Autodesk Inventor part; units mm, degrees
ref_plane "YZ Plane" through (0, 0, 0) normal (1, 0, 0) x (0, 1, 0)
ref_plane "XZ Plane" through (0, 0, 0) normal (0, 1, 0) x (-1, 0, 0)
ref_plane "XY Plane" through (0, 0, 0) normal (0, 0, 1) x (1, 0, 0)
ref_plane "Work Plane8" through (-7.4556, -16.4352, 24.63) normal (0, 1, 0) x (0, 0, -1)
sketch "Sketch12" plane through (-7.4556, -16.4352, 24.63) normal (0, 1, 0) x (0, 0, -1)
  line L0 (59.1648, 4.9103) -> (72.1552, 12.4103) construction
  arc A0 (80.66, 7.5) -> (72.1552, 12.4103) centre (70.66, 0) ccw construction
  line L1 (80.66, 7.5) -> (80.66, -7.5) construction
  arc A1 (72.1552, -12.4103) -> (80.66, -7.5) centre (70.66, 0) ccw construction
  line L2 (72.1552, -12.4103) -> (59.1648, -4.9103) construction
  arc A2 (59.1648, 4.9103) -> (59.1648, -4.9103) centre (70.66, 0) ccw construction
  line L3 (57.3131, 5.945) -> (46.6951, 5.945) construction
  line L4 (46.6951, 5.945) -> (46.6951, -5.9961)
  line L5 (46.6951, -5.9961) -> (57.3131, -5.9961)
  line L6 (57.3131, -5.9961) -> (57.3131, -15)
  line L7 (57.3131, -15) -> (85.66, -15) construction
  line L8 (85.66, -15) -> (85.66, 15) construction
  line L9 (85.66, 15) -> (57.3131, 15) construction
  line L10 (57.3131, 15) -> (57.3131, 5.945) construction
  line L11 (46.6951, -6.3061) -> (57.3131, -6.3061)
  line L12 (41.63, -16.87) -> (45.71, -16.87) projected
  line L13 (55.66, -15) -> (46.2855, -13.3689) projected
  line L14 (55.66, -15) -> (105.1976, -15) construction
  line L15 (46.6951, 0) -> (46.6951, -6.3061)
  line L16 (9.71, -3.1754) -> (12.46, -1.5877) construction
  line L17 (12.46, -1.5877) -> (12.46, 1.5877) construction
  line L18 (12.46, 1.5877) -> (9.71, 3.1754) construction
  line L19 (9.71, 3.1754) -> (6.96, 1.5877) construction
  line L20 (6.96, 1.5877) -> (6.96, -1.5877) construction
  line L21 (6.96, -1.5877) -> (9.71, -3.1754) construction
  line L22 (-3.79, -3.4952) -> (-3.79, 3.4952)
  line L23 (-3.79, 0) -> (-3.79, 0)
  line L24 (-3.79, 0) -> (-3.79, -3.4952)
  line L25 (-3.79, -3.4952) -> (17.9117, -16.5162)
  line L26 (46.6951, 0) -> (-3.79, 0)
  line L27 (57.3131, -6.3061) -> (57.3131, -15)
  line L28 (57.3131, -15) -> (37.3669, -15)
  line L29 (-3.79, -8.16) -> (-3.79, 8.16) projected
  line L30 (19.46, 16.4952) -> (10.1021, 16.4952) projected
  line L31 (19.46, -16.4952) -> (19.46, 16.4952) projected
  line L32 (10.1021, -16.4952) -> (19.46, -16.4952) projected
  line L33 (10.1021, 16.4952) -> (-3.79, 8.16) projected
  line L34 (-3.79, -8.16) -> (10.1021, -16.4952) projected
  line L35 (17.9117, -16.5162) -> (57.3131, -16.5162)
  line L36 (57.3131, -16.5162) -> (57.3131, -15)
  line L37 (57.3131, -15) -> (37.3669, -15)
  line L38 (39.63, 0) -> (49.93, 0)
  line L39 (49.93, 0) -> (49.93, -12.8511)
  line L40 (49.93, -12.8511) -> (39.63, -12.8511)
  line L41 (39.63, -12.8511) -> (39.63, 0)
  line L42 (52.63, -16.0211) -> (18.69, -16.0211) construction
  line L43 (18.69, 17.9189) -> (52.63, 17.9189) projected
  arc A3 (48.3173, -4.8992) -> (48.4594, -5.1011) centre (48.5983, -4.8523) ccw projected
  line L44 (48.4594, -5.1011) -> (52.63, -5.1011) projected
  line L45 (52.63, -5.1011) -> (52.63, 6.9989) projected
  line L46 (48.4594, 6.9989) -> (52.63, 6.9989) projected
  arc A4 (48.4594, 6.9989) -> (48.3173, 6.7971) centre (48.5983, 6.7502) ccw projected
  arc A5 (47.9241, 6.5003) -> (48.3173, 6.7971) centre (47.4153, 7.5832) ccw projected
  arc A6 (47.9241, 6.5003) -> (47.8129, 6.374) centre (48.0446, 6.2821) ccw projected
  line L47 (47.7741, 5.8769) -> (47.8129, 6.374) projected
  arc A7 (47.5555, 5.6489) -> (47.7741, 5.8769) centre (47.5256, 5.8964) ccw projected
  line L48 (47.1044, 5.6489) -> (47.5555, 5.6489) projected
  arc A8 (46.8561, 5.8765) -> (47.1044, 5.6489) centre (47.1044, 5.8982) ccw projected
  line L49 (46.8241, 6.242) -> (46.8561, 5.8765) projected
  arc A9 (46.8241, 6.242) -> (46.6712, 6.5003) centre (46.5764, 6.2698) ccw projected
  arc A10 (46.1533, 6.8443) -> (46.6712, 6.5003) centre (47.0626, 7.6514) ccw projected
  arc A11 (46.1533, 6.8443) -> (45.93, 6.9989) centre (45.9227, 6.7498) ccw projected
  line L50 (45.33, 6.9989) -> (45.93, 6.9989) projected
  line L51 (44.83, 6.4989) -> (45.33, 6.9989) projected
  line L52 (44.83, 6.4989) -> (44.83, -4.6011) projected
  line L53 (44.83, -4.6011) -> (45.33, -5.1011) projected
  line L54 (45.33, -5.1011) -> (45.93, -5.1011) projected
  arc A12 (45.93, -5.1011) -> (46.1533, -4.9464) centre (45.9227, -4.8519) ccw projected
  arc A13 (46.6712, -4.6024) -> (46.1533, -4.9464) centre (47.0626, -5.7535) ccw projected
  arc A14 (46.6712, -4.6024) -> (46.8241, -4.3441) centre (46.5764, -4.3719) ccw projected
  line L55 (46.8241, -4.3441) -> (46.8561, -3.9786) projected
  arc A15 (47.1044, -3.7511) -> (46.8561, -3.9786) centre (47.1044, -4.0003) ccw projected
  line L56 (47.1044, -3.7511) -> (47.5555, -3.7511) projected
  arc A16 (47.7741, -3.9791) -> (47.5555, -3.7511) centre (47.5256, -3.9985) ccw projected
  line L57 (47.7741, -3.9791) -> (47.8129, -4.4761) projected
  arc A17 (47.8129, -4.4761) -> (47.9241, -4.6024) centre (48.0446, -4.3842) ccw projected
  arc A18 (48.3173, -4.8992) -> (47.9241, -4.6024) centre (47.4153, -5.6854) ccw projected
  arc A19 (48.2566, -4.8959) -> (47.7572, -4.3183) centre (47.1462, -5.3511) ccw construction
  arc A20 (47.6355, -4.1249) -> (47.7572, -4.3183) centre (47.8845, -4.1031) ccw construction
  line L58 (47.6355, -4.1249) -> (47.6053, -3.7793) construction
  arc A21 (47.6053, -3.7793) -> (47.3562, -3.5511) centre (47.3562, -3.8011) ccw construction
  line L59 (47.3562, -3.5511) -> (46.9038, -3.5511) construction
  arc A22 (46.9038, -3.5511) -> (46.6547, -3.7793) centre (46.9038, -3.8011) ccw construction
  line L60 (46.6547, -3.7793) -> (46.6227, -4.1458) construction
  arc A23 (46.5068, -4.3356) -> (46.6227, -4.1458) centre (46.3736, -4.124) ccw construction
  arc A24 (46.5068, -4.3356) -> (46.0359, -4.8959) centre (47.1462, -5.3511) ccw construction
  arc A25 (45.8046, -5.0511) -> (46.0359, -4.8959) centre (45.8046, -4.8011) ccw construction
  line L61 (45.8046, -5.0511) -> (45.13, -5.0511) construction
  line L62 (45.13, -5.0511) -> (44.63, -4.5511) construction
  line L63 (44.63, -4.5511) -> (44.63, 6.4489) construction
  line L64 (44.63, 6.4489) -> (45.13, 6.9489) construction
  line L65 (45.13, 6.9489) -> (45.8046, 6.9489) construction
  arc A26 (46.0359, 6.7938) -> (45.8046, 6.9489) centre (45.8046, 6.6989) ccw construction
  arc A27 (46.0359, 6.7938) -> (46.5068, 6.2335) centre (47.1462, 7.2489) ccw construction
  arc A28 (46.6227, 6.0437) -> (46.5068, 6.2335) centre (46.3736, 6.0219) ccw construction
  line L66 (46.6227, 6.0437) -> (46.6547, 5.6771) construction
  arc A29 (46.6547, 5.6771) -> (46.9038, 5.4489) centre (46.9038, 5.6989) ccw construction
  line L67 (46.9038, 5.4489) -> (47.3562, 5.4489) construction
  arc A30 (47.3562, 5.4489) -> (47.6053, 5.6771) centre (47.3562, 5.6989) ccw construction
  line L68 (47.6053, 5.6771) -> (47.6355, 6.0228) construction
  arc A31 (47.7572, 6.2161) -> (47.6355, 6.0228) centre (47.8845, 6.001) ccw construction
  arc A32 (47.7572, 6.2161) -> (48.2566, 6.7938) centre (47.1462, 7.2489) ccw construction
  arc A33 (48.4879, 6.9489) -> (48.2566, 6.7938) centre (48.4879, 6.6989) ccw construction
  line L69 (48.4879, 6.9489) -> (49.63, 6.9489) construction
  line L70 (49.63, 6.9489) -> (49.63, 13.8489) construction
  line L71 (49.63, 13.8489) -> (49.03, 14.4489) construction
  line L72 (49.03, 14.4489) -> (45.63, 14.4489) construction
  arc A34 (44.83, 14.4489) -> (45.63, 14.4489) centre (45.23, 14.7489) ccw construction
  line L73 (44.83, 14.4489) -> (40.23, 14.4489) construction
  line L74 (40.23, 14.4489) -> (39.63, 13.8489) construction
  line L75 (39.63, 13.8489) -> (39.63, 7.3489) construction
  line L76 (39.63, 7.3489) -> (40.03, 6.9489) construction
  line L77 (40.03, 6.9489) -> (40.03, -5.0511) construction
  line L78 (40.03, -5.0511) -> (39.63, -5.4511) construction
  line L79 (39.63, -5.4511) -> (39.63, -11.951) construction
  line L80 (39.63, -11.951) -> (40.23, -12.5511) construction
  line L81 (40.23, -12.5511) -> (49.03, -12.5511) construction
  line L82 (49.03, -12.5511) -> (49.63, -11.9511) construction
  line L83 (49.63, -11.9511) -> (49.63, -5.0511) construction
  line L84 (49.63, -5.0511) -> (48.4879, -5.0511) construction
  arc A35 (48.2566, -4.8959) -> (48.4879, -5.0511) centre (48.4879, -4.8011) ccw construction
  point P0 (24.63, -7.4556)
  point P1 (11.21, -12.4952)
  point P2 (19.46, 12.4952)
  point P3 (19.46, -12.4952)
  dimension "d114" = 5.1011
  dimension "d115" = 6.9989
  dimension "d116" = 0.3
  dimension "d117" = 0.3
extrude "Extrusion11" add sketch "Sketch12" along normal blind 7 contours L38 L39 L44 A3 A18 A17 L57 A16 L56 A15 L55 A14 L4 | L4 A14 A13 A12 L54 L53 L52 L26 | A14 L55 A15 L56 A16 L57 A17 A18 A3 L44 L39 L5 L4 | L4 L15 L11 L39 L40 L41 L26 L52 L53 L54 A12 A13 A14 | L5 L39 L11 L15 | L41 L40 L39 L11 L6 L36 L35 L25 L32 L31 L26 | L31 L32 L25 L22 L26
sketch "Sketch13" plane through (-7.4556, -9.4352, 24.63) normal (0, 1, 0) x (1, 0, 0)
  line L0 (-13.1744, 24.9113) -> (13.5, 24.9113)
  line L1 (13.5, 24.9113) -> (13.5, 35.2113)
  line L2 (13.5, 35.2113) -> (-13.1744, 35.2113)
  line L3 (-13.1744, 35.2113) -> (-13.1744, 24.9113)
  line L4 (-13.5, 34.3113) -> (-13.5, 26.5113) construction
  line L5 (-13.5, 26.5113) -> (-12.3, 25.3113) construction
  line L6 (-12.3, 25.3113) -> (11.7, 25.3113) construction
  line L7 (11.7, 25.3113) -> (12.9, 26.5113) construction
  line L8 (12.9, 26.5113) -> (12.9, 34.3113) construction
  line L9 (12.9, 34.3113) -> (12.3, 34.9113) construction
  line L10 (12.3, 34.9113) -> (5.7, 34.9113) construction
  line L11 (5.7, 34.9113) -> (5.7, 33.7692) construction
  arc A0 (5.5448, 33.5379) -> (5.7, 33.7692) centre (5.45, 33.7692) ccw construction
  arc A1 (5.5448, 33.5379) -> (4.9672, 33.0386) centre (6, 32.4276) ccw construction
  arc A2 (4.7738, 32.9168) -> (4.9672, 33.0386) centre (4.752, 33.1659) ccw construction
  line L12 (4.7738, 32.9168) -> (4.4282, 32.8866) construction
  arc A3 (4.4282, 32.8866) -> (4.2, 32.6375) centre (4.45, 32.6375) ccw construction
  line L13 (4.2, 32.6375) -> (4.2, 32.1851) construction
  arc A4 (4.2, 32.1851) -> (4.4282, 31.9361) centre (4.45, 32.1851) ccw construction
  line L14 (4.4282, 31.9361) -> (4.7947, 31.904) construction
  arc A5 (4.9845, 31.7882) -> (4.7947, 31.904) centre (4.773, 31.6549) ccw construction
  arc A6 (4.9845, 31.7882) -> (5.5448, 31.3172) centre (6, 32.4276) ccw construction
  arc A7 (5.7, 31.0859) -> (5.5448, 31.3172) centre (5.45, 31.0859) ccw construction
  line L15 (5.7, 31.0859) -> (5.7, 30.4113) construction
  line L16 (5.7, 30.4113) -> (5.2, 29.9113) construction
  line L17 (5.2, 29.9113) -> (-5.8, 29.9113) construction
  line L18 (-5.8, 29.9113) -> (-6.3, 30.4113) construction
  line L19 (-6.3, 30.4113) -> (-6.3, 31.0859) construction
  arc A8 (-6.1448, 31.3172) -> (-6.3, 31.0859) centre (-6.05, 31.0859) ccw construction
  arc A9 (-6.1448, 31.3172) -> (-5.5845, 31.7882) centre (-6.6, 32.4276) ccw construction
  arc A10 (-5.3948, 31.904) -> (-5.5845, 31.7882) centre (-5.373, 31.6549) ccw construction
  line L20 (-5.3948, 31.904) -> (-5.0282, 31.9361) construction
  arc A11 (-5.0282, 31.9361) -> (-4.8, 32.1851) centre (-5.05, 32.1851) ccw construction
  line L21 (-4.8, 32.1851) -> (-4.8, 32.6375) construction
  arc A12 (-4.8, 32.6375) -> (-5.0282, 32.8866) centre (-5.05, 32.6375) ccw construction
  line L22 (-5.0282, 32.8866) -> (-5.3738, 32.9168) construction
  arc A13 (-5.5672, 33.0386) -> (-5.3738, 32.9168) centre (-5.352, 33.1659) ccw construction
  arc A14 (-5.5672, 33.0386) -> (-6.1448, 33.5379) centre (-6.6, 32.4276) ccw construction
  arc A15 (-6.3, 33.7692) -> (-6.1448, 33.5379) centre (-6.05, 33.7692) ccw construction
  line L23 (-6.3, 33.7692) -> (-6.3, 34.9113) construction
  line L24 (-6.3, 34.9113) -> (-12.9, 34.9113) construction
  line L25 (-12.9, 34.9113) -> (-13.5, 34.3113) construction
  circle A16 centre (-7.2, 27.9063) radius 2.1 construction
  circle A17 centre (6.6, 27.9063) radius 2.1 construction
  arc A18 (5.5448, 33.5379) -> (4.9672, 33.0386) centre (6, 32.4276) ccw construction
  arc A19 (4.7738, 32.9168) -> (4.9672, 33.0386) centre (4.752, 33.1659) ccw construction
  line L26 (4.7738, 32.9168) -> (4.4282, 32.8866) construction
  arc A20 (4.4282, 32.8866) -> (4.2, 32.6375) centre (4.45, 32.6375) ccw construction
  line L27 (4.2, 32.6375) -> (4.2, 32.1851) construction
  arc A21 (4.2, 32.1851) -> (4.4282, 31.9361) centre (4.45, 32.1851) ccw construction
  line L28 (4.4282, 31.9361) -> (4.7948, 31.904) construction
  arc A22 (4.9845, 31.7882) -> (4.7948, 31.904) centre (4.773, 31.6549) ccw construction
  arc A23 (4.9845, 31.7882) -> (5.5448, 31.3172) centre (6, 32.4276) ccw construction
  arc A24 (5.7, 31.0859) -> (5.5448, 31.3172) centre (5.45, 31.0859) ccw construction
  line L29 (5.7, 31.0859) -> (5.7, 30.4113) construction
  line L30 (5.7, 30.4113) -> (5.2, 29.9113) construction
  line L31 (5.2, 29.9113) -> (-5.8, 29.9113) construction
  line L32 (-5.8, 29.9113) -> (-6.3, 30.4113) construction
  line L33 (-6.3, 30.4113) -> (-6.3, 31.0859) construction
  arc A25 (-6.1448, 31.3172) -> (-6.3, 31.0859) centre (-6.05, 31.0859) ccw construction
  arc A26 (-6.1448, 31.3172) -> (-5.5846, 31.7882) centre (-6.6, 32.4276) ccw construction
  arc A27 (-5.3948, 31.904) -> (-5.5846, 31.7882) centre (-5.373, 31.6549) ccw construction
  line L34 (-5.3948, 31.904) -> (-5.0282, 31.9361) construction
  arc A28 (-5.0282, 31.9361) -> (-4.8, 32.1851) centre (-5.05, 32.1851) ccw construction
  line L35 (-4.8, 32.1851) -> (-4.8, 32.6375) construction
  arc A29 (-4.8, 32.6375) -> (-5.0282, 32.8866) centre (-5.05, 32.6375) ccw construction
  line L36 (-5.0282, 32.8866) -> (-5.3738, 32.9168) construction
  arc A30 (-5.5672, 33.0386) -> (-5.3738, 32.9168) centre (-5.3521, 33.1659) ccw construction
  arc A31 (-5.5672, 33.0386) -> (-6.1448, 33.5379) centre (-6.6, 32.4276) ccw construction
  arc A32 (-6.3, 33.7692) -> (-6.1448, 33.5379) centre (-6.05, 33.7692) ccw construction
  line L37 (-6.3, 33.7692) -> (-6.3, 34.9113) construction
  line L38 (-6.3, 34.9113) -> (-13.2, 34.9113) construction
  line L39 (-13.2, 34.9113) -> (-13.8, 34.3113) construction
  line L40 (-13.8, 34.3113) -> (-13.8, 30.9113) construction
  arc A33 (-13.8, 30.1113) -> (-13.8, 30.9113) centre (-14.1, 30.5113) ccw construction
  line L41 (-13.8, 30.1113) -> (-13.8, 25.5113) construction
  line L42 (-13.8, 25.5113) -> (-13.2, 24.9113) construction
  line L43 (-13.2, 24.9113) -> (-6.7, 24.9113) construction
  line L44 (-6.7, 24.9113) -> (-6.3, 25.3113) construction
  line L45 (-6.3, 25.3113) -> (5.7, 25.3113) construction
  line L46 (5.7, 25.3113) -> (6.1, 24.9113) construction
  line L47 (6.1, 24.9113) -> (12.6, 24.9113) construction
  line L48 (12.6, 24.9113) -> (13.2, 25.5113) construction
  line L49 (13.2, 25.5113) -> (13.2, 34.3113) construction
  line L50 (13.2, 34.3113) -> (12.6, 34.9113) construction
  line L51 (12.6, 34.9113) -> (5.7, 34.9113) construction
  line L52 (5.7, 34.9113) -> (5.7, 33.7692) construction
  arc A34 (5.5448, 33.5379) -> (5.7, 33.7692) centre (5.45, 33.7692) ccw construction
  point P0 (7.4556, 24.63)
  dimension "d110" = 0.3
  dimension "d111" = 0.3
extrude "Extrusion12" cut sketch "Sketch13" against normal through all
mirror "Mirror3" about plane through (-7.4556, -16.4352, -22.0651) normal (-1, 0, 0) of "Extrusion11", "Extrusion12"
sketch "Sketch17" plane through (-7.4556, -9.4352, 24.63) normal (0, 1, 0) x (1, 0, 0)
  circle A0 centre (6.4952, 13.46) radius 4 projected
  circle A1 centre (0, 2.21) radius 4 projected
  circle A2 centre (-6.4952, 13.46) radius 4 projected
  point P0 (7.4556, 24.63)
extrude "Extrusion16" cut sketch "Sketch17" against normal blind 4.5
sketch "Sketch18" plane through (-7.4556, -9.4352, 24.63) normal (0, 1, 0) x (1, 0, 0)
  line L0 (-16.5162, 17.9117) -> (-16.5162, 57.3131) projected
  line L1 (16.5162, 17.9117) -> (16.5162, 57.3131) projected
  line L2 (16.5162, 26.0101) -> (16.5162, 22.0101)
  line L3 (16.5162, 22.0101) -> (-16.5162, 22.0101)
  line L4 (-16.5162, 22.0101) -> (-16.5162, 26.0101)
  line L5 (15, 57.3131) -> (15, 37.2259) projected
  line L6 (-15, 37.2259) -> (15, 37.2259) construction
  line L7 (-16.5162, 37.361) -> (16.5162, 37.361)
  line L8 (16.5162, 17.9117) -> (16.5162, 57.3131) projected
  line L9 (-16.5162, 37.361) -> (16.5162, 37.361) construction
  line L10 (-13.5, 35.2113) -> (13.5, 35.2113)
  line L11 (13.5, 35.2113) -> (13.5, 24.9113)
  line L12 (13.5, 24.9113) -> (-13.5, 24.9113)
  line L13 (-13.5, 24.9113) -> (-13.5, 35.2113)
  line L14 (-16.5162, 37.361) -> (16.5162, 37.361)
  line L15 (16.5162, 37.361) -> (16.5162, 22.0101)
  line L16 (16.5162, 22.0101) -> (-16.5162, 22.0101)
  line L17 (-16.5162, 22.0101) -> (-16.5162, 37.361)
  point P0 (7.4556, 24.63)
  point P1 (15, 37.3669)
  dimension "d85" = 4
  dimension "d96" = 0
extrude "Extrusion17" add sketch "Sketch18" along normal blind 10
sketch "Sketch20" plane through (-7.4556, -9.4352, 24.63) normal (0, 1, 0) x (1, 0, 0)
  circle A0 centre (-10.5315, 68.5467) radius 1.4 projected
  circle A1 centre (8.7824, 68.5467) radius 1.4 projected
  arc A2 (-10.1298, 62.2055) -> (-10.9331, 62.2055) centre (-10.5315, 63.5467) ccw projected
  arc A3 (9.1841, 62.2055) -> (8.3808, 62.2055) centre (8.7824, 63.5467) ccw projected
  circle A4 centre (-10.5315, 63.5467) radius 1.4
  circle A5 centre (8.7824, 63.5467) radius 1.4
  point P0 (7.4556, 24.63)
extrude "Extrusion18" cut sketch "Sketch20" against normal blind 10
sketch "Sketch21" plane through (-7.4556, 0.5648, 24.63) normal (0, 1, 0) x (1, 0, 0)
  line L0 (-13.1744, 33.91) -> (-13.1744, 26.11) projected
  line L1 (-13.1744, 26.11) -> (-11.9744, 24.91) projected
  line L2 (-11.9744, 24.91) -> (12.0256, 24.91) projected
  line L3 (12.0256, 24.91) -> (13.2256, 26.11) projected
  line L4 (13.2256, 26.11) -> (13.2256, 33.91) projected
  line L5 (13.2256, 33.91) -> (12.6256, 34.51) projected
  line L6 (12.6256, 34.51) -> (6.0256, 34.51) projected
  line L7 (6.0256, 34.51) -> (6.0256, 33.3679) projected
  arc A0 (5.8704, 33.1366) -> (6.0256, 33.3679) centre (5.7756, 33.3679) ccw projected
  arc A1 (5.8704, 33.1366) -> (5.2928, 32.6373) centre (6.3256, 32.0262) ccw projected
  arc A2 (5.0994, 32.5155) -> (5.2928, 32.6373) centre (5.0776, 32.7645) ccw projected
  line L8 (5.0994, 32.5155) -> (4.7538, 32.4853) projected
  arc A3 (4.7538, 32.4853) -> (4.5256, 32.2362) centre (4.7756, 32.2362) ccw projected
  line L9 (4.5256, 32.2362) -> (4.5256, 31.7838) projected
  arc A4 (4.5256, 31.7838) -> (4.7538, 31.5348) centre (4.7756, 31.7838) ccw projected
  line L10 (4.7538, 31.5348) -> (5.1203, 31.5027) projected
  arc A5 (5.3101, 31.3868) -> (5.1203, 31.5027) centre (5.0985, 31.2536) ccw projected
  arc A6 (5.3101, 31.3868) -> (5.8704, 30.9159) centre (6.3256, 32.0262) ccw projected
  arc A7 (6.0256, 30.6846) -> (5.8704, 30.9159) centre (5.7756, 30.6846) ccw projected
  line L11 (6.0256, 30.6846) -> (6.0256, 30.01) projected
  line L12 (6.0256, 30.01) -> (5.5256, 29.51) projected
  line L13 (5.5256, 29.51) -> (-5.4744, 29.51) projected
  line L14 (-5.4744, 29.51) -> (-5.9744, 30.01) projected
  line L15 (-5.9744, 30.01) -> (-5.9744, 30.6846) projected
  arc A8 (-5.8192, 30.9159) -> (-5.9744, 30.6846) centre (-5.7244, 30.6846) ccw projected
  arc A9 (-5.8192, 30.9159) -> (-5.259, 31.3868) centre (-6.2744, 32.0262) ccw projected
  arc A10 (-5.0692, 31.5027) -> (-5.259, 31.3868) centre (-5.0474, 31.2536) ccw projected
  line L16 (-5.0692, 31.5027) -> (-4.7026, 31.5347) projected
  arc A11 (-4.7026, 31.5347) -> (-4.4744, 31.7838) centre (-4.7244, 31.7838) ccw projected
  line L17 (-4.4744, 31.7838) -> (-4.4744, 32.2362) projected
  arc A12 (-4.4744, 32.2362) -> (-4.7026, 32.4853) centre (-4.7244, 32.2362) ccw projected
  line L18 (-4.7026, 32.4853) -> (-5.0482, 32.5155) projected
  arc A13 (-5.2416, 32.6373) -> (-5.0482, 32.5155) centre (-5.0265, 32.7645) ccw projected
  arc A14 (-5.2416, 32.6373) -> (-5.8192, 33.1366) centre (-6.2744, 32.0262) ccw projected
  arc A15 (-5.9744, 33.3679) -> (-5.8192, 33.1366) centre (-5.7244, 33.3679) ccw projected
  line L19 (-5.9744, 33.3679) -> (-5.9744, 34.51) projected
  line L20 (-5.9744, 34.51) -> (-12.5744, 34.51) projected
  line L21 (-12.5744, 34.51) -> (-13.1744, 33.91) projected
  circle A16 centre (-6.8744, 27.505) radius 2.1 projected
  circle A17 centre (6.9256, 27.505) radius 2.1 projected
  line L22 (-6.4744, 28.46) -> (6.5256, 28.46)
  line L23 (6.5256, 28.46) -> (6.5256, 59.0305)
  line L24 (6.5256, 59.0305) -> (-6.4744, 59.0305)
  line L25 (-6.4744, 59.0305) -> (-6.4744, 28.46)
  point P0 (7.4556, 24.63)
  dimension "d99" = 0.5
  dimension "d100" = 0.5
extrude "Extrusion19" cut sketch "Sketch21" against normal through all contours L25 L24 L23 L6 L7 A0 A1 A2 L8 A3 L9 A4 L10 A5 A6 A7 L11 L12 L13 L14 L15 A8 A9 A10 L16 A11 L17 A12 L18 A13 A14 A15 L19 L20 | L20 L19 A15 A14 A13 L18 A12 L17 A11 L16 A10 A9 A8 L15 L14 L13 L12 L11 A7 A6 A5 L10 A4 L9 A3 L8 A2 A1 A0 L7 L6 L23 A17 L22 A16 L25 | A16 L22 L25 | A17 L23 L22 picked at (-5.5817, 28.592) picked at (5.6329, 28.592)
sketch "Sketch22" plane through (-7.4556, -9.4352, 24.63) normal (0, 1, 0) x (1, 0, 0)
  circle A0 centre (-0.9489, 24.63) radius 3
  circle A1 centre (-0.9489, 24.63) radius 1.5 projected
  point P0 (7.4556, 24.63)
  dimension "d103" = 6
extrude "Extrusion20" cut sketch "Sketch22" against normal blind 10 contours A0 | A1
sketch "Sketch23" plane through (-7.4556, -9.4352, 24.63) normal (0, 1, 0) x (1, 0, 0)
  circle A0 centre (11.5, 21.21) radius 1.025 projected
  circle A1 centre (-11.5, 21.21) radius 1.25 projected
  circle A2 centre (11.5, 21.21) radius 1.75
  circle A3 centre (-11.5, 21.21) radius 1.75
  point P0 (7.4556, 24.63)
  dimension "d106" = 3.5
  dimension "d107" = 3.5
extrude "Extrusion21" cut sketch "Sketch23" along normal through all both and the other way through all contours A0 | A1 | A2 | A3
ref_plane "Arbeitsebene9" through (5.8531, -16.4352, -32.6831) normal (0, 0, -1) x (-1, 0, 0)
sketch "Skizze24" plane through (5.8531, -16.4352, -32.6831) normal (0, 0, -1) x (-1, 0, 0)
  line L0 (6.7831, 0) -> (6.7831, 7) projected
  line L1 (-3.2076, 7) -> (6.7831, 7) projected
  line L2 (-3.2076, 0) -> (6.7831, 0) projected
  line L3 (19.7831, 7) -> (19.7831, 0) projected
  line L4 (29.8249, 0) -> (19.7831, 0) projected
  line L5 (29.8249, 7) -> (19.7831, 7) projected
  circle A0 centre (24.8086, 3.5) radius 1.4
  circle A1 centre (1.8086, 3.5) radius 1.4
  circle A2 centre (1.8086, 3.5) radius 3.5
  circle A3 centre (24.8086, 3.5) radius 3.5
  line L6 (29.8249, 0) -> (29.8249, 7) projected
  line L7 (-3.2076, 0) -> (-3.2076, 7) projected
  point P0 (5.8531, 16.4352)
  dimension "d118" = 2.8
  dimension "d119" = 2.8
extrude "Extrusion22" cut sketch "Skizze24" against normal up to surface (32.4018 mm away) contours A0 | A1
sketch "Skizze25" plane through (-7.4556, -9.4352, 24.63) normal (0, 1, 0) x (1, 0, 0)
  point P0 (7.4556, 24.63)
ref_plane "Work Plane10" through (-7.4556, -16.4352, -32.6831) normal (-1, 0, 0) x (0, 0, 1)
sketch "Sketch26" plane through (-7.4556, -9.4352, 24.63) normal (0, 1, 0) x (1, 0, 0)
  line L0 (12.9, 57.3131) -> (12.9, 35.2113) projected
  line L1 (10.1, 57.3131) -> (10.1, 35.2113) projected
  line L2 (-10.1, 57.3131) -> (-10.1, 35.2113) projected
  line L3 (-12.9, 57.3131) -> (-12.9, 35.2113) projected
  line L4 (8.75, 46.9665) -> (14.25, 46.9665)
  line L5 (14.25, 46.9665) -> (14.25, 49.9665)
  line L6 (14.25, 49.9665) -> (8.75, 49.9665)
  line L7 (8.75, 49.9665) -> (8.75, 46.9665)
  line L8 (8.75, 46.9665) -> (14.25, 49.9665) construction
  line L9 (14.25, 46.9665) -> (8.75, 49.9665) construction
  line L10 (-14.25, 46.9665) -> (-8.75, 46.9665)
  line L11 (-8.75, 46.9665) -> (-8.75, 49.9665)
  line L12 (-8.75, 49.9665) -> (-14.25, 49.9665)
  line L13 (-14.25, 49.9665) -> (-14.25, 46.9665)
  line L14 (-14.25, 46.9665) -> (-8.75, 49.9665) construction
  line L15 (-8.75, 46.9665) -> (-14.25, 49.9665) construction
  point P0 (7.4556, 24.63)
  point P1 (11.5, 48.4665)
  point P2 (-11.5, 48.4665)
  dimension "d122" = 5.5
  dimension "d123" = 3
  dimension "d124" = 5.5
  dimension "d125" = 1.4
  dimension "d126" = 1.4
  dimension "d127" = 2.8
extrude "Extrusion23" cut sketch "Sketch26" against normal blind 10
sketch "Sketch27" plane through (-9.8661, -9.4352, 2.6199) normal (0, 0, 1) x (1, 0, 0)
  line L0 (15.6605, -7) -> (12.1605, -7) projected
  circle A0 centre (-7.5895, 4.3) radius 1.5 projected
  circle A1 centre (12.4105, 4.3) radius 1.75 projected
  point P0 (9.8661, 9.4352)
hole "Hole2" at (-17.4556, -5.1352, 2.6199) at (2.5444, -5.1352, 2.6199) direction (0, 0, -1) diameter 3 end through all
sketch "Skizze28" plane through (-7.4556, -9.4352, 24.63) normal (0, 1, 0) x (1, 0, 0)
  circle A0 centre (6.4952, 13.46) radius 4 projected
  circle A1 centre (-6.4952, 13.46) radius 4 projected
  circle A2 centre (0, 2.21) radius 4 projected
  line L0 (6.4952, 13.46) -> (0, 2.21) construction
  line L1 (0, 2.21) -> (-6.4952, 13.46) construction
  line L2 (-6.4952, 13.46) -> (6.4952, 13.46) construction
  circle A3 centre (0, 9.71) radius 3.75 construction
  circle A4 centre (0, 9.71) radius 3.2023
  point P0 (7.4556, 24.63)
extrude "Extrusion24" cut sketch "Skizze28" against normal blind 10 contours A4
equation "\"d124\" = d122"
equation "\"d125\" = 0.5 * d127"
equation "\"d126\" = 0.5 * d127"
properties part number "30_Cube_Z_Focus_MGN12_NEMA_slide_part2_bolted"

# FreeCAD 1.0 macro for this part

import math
import FreeCAD as App
import Part
import Sketcher
from FreeCAD import Vector
Q = App.Units.Quantity

doc = App.newDocument("Part")
params = doc.addObject("Spreadsheet::Sheet", "Params")
for row, (alias, value) in enumerate([
    ("sketch1_width", "10.21 mm"),
    ("sketch1_height", "53.72 mm"),
    ("pad1_length", "7 mm"),
    ("sketch2_height", "10.3 mm"),
    ("sketch3_diameter", "8 mm"),
    ("pocket2_length", "4.5 mm"),
    ("sketch4_width", "27 mm"),
    ("sketch4_height", "10.3 mm"),
    ("pad2_length", "10 mm"),
    ("sketch5_diameter", "2.8 mm"),
    ("pocket3_length", "10 mm"),
    ("sketch6_width", "13 mm"),
    ("sketch7_diameter", "6 mm"),
    ("pocket5_length", "10 mm"),
    ("sketch8_diameter", "3.5 mm"),
    ("sketch9_diameter", "2.8 mm"),
    ("pocket7_length", "32.4018 mm"),
    ("sketch10_height", "3 mm"),
    ("sketch10_width", "5.5 mm"),
    ("pocket8_length", "10 mm"),
    ("sketch11_diameter", "3 mm"),
    ("hole_diameter", "3 mm"),
    ("pocket9_length", "10 mm"),
], start=1):
    params.set(f"A{row}", alias)
    params.set(f"B{row}", "=" + value)
    params.setAlias(f"B{row}", alias)

body = doc.addObject("PartDesign::Body", "Body")

sketch1 = body.newObject("Sketcher::SketchObject", "Sketch")
sketch1.AttachmentSupport = (doc.getObject("XZ_Plane"), [""])
sketch1.MapMode = "FlatFace"
sketch1.AttachmentOffset = App.Placement(Vector(0, 0, 16.4352), App.Rotation())
sketch1.addGeometry([
    Part.LineSegment(Vector(-7.5, -25.3, 0), Vector(-7.5, 28.4, 0)),
    Part.LineSegment(Vector(-7.5, 28.4, 0), Vector(-4, 28.4, 0)),
    Part.LineSegment(Vector(-4, 28.4, 0), Vector(9.1, 6.7, 0)),
    Part.LineSegment(Vector(9.1, 6.7, 0), Vector(9.1, -32.7, 0)),
    Part.LineSegment(Vector(9.1, -32.7, 0), Vector(-1.1, -32.7, 0)),
    Part.LineSegment(Vector(-1.1, -32.7, 0), Vector(-1.1, -25.3, 0)),
    Part.LineSegment(Vector(-1.1, -25.3, 0), Vector(-7.5, -25.3, 0)),
], False)
sketch1.addConstraint([
    Sketcher.Constraint("Coincident", 0, 2, 1, 1),
    Sketcher.Constraint("Coincident", 1, 2, 2, 1),
    Sketcher.Constraint("Coincident", 2, 2, 3, 1),
    Sketcher.Constraint("Coincident", 3, 2, 4, 1),
    Sketcher.Constraint("Coincident", 4, 2, 5, 1),
    Sketcher.Constraint("Coincident", 5, 2, 6, 1),
    Sketcher.Constraint("Coincident", 6, 2, 0, 1),
    Sketcher.Constraint("Vertical", 0),
    Sketcher.Constraint("Horizontal", 1),
    Sketcher.Constraint("Vertical", 3),
    Sketcher.Constraint("Horizontal", 4),
    Sketcher.Constraint("Vertical", 5),
    Sketcher.Constraint("Horizontal", 6),
    Sketcher.Constraint("DistanceX", 4, 2, 4, 1, Q("10.21 mm")),
    Sketcher.Constraint("DistanceY", 0, 1, 0, 2, Q("53.72 mm")),
    Sketcher.Constraint("DistanceY", 5, 2, -1, 1, Q("25.3 mm")),
    Sketcher.Constraint("DistanceX", 6, 2, 6, 1, Q("6.306 mm")),
    Sketcher.Constraint("DistanceY", 5, 1, 5, 2, Q("7.383 mm")),
    Sketcher.Constraint("DistanceX", 1, 1, 1, 2, Q("3.4952 mm")),
    Sketcher.Constraint("DistanceY", 3, 2, 3, 1, Q("39.4014 mm")),
    Sketcher.Constraint("DistanceX", 0, 2, -1, 1, Q("7.4556 mm")),
])
sketch1.setExpression("Constraints[13]", "Params.sketch1_width")
sketch1.setExpression("Constraints[14]", "Params.sketch1_height")
pad1 = body.newObject("PartDesign::Pad", "Pad")
pad1.Profile = sketch1
pad1.setExpression("Length", "Params.pad1_length")
pad1.Reversed = True

sketch2 = body.newObject("Sketcher::SketchObject", "Sketch001")
sketch2.AttachmentSupport = (doc.getObject("XZ_Plane"), [""])
sketch2.MapMode = "FlatFace"
sketch2.AttachmentOffset = App.Placement(Vector(0, 0, 9.4352), App.Rotation())
sketch2.addGeometry([
    Part.LineSegment(Vector(-21, -11, 0), Vector(-21, 0, 0)),
    Part.LineSegment(Vector(-21, 0, 0), Vector(6, 0, 0)),
    Part.LineSegment(Vector(6, 0, 0), Vector(6, -11, 0)),
    Part.LineSegment(Vector(6, -11, 0), Vector(-21, -11, 0)),
], False)
sketch2.addConstraint([
    Sketcher.Constraint("Coincident", 0, 2, 1, 1),
    Sketcher.Constraint("Coincident", 1, 2, 2, 1),
    Sketcher.Constraint("Coincident", 2, 2, 3, 1),
    Sketcher.Constraint("Coincident", 3, 2, 0, 1),
    Sketcher.Constraint("Vertical", 0),
    Sketcher.Constraint("Horizontal", 1),
    Sketcher.Constraint("Vertical", 2),
    Sketcher.Constraint("Horizontal", 3),
    Sketcher.Constraint("DistanceY", 0, 1, 0, 2, Q("10.3 mm")),
    Sketcher.Constraint("DistanceX", 0, 2, -1, 1, Q("20.63 mm")),
    Sketcher.Constraint("DistanceX", 1, 1, 1, 2, Q("26.6744 mm")),
    Sketcher.Constraint("DistanceY", 0, 2, -1, 1, Q("0.2813 mm")),
])
sketch2.setExpression("Constraints[8]", "Params.sketch2_height")
pocket1 = body.newObject("PartDesign::Pocket", "Pocket")
pocket1.Profile = sketch2
pocket1.Type = "ThroughAll"
pocket1.Reversed = True
doc.recompute()

datumplane = body.newObject("PartDesign::Plane", "DatumPlane")
datumplane.AttachmentSupport = (doc.getObject("YZ_Plane"), [""])
datumplane.MapMode = "FlatFace"
datumplane.AttachmentOffset = App.Placement(Vector(0, 0, -7.4556), App.Rotation())
mirrored = body.newObject("PartDesign::Mirrored", "Mirrored")
mirrored.Originals = [pad1, pocket1]
mirrored.MirrorPlane = (datumplane, [""])
body.Tip = mirrored

sketch3 = body.newObject("Sketcher::SketchObject", "Sketch002")
sketch3.AttachmentSupport = (doc.getObject("XZ_Plane"), [""])
sketch3.MapMode = "FlatFace"
sketch3.AttachmentOffset = App.Placement(Vector(0, 0, 9.4352), App.Rotation())
sketch3.addGeometry([
    Part.Circle(Vector(-1, 11.2, 0), Vector(0, 0, 1), 4),
    Part.Circle(Vector(-7.5, 22.4, 0), Vector(0, 0, 1), 4),
    Part.Circle(Vector(-14, 11.2, 0), Vector(0, 0, 1), 4),
], False)
sketch3.addConstraint([
    Sketcher.Constraint("Equal", 0, 1),
    Sketcher.Constraint("Equal", 1, 2),
    Sketcher.Constraint("Horizontal", 0, 3, 2, 3),
    Sketcher.Constraint("Diameter", 0, Q("8 mm")),
    Sketcher.Constraint("DistanceY", -1, 1, 0, 3, Q("11.17 mm")),
    Sketcher.Constraint("DistanceY", -1, 1, 1, 3, Q("22.42 mm")),
    Sketcher.Constraint("DistanceX", 0, 3, -1, 1, Q("0.9604 mm")),
    Sketcher.Constraint("DistanceX", 1, 3, -1, 1, Q("7.4556 mm")),
    Sketcher.Constraint("DistanceX", 2, 3, -1, 1, Q("13.9508 mm")),
])
sketch3.setExpression("Constraints[3]", "Params.sketch3_diameter")
pocket2 = body.newObject("PartDesign::Pocket", "Pocket001")
pocket2.Profile = sketch3
pocket2.setExpression("Length", "Params.pocket2_length")
pocket2.Reversed = True

sketch4 = body.newObject("Sketcher::SketchObject", "Sketch003")
sketch4.AttachmentSupport = (doc.getObject("XZ_Plane"), [""])
sketch4.MapMode = "FlatFace"
sketch4.AttachmentOffset = App.Placement(Vector(0, 0, 9.4352), App.Rotation())
sketch4.addGeometry([
    Part.LineSegment(Vector(-24, -13, 0), Vector(-24, 3, 0)),
    Part.LineSegment(Vector(-24, 3, 0), Vector(9, 3, 0)),
    Part.LineSegment(Vector(9, 3, 0), Vector(9, -13, 0)),
    Part.LineSegment(Vector(9, -13, 0), Vector(-24, -13, 0)),
    Part.LineSegment(Vector(-21, 0, 0), Vector(-21, -11, 0)),
    Part.LineSegment(Vector(-21, -11, 0), Vector(6, -11, 0)),
    Part.LineSegment(Vector(6, -11, 0), Vector(6, 0, 0)),
    Part.LineSegment(Vector(6, 0, 0), Vector(-21, 0, 0)),
], False)
sketch4.addConstraint([
    Sketcher.Constraint("Coincident", 0, 2, 1, 1),
    Sketcher.Constraint("Coincident", 1, 2, 2, 1),
    Sketcher.Constraint("Coincident", 2, 2, 3, 1),
    Sketcher.Constraint("Coincident", 3, 2, 0, 1),
    Sketcher.Constraint("Coincident", 4, 2, 5, 1),
    Sketcher.Constraint("Coincident", 5, 2, 6, 1),
    Sketcher.Constraint("Coincident", 6, 2, 7, 1),
    Sketcher.Constraint("Coincident", 7, 2, 4, 1),
    Sketcher.Constraint("Vertical", 0),
    Sketcher.Constraint("Horizontal", 1),
    Sketcher.Constraint("Vertical", 2),
    Sketcher.Constraint("Horizontal", 3),
    Sketcher.Constraint("Vertical", 4),
    Sketcher.Constraint("Horizontal", 5),
    Sketcher.Constraint("Vertical", 6),
    Sketcher.Constraint("Horizontal", 7),
    Sketcher.Constraint("DistanceX", 5, 1, 5, 2, Q("27 mm")),
    Sketcher.Constraint("DistanceY", 4, 2, 4, 1, Q("10.3 mm")),
    Sketcher.Constraint("DistanceY", 0, 1, 0, 2, Q("15.351 mm")),
    Sketcher.Constraint("DistanceY", -1, 1, 0, 2, Q("2.62 mm")),
    Sketcher.Constraint("DistanceX", 1, 1, 1, 2, Q("33.0324 mm")),
    Sketcher.Constraint("DistanceX", 0, 2, -1, 1, Q("23.9718 mm")),
    Sketcher.Constraint("DistanceX", 4, 2, -1, 1, Q("20.9556 mm")),
    Sketcher.Constraint("DistanceY", 4, 2, -1, 1, Q("10.5813 mm")),
])
sketch4.setExpression("Constraints[16]", "Params.sketch4_width")
sketch4.setExpression("Constraints[17]", "Params.sketch4_height")
pad2 = body.newObject("PartDesign::Pad", "Pad001")
pad2.Profile = sketch4
pad2.setExpression("Length", "Params.pad2_length")
pad2.Reversed = True

sketch5 = body.newObject("Sketcher::SketchObject", "Sketch004")
sketch5.AttachmentSupport = (doc.getObject("XZ_Plane"), [""])
sketch5.MapMode = "FlatFace"
sketch5.AttachmentOffset = App.Placement(Vector(0, 0, 9.4352), App.Rotation())
sketch5.addGeometry([
    Part.Circle(Vector(-18, -43.9, 0), Vector(0, 0, 1), 1.4),
    Part.Circle(Vector(1.3, -43.9, 0), Vector(0, 0, 1), 1.4),
    Part.ArcOfCircle(Part.Circle(Vector(-18, -38.9, 0), Vector(0, 0, 1), 1.4), math.radians(73), math.radians(107)),
    Part.ArcOfCircle(Part.Circle(Vector(-18, -38.9, 0), Vector(0, 0, 1), 1.4), math.radians(107), math.radians(433)),
    Part.ArcOfCircle(Part.Circle(Vector(1.3, -38.9, 0), Vector(0, 0, 1), 1.4), math.radians(73), math.radians(107)),
    Part.ArcOfCircle(Part.Circle(Vector(1.3, -38.9, 0), Vector(0, 0, 1), 1.4), math.radians(107), math.radians(433)),
], False)
sketch5.addConstraint([
    Sketcher.Constraint("Tangent", 2, 1, 3, 2),
    Sketcher.Constraint("Coincident", 3, 1, 2, 2),
    Sketcher.Constraint("Tangent", 4, 1, 5, 2),
    Sketcher.Constraint("Coincident", 5, 1, 4, 2),
    Sketcher.Constraint("Equal", 0, 1),
    Sketcher.Constraint("Equal", 1, 2),
    Sketcher.Constraint("Equal", 3, 4),
    Sketcher.Constraint("Horizontal", 0, 3, 1, 3),
    Sketcher.Constraint("Horizontal", 3, 3, 4, 3),
    Sketcher.Constraint("Horizontal", 2, 1, 3, 1),
    Sketcher.Constraint("Horizontal", 3, 1, 4, 1),
    Sketcher.Constraint("Horizontal", 4, 1, 5, 1),
    Sketcher.Constraint("Vertical", 0, 3, 2, 3),
    Sketcher.Constraint("Vertical", 1, 3, 4, 3),
    Sketcher.Constraint("Diameter", 0, Q("2.8 mm")),
    Sketcher.Constraint("DistanceY", 0, 3, 2, 3, Q("5 mm")),
    Sketcher.Constraint("DistanceX", 0, 3, -1, 1, Q("17.987 mm")),
    Sketcher.Constraint("DistanceX", 0, 3, 1, 3, Q("19.314 mm")),
    Sketcher.Constraint("DistanceY", 0, 3, -1, 1, Q("43.9167 mm")),
    Sketcher.Constraint("DistanceX", 2, 1, -1, 1, Q("17.5854 mm")),
])
sketch5.setExpression("Constraints[14]", "Params.sketch5_diameter")
pocket3 = body.newObject("PartDesign::Pocket", "Pocket002")
pocket3.Profile = sketch5
pocket3.setExpression("Length", "Params.pocket3_length")
pocket3.Reversed = True

sketch6 = body.newObject("Sketcher::SketchObject", "Sketch005")
sketch6.AttachmentSupport = (doc.getObject("XZ_Plane"), [""])
sketch6.MapMode = "FlatFace"
sketch6.AttachmentOffset = App.Placement(Vector(0, 0, -0.5648), App.Rotation())
sketch6.addGeometry([
    Part.LineSegment(Vector(-14, -34, 0), Vector(-14, -4, 0)),
    Part.LineSegment(Vector(-14, -4, 0), Vector(-1, -4, 0)),
    Part.LineSegment(Vector(-1, -4, 0), Vector(-1, -34, 0)),
    Part.LineSegment(Vector(-1, -34, 0), Vector(-14, -34, 0)),
], False)
sketch6.addConstraint([
    Sketcher.Constraint("Coincident", 0, 2, 1, 1),
    Sketcher.Constraint("Coincident", 1, 2, 2, 1),
    Sketcher.Constraint("Coincident", 2, 2, 3, 1),
    Sketcher.Constraint("Coincident", 3, 2, 0, 1),
    Sketcher.Constraint("Vertical", 0),
    Sketcher.Constraint("Horizontal", 1),
    Sketcher.Constraint("Vertical", 2),
    Sketcher.Constraint("Horizontal", 3),
    Sketcher.Constraint("DistanceX", 1, 1, 1, 2, Q("13 mm")),
    Sketcher.Constraint("DistanceX", 0, 2, -1, 1, Q("13.93 mm")),
    Sketcher.Constraint("DistanceY", 0, 2, -1, 1, Q("3.83 mm")),
    Sketcher.Constraint("DistanceY", 0, 1, 0, 2, Q("30.5705 mm")),
])
sketch6.setExpression("Constraints[8]", "Params.sketch6_width")
pocket4 = body.newObject("PartDesign::Pocket", "Pocket003")
pocket4.Profile = sketch6
pocket4.Type = "ThroughAll"
pocket4.Reversed = True

sketch7 = body.newObject("Sketcher::SketchObject", "Sketch006")
sketch7.AttachmentSupport = (doc.getObject("XZ_Plane"), [""])
sketch7.MapMode = "FlatFace"
sketch7.AttachmentOffset = App.Placement(Vector(0, 0, 9.4352), App.Rotation())
sketch7.addGeometry(Part.Circle(Vector(-8.4, 0, 0), Vector(0, 0, 1), 3), False)
sketch7.addConstraint([
    Sketcher.Constraint("PointOnObject", 0, 3, -1),
    Sketcher.Constraint("Diameter", 0, Q("6 mm")),
    Sketcher.Constraint("DistanceX", 0, 3, -1, 1, Q("8.4045 mm")),
])
sketch7.setExpression("Constraints[1]", "Params.sketch7_diameter")
pocket5 = body.newObject("PartDesign::Pocket", "Pocket004")
pocket5.Profile = sketch7
pocket5.setExpression("Length", "Params.pocket5_length")
pocket5.Reversed = True

sketch8 = body.newObject("Sketcher::SketchObject", "Sketch007")
sketch8.AttachmentSupport = (doc.getObject("XZ_Plane"), [""])
sketch8.MapMode = "FlatFace"
sketch8.AttachmentOffset = App.Placement(Vector(0, 0, 9.4352), App.Rotation())
sketch8.addGeometry([
    Part.Circle(Vector(4, 3.4, 0), Vector(0, 0, 1), 1.8),
    Part.Circle(Vector(-19, 3.4, 0), Vector(0, 0, 1), 1.8),
], False)
sketch8.addConstraint([
    Sketcher.Constraint("Equal", 0, 1),
    Sketcher.Constraint("Horizontal", 0, 3, 1, 3),
    Sketcher.Constraint("Diameter", 0, Q("3.5 mm")),
    Sketcher.Constraint("DistanceX", 1, 3, 0, 3, Q("23 mm")),
    Sketcher.Constraint("DistanceY", -1, 1, 0, 3, Q("3.42 mm")),
    Sketcher.Constraint("DistanceX", -1, 1, 0, 3, Q("4.0444 mm")),
])
sketch8.setExpression("Constraints[2]", "Params.sketch8_diameter")
pocket6 = body.newObject("PartDesign::Pocket", "Pocket005")
pocket6.Profile = sketch8
pocket6.Type = "ThroughAll"
pocket6.Midplane = True

sketch9 = body.newObject("Sketcher::SketchObject", "Sketch008")
sketch9.AttachmentSupport = (doc.getObject("XY_Plane"), [""])
sketch9.MapMode = "FlatFace"
sketch9.AttachmentOffset = App.Placement(Vector(0, 0, -32.6831), App.Rotation())
sketch9.addGeometry([
    Part.Circle(Vector(-19, -12.9, 0), Vector(0, 0, 1), 1.4),
    Part.Circle(Vector(4, -12.9, 0), Vector(0, 0, 1), 1.4),
], False)
sketch9.addConstraint([
    Sketcher.Constraint("Equal", 0, 1),
    Sketcher.Constraint("Horizontal", 0, 3, 1, 3),
    Sketcher.Constraint("Diameter", 0, Q("2.8 mm")),
    Sketcher.Constraint("DistanceX", 0, 3, 1, 3, Q("23 mm")),
    Sketcher.Constraint("DistanceX", 0, 3, -1, 1, Q("18.9555 mm")),
    Sketcher.Constraint("DistanceY", 0, 3, -1, 1, Q("12.9352 mm")),
])
sketch9.setExpression("Constraints[2]", "Params.sketch9_diameter")
pocket7 = body.newObject("PartDesign::Pocket", "Pocket006")
pocket7.Profile = sketch9
pocket7.setExpression("Length", "Params.pocket7_length")
pocket7.Reversed = True

sketch10 = body.newObject("Sketcher::SketchObject", "Sketch009")
sketch10.AttachmentSupport = (doc.getObject("XZ_Plane"), [""])
sketch10.MapMode = "FlatFace"
sketch10.AttachmentOffset = App.Placement(Vector(0, 0, 9.4352), App.Rotation())
sketch10.addGeometry([
    Part.LineSegment(Vector(6.8, -25.3, 0), Vector(1.3, -25.3, 0)),
    Part.LineSegment(Vector(1.3, -25.3, 0), Vector(1.3, -22.3, 0)),
    Part.LineSegment(Vector(1.3, -22.3, 0), Vector(6.8, -22.3, 0)),
    Part.LineSegment(Vector(6.8, -22.3, 0), Vector(6.8, -25.3, 0)),
    Part.LineSegment(Vector(-16.2, -25.3, 0), Vector(-21.7, -25.3, 0)),
    Part.LineSegment(Vector(-21.7, -25.3, 0), Vector(-21.7, -22.3, 0)),
    Part.LineSegment(Vector(-21.7, -22.3, 0), Vector(-16.2, -22.3, 0)),
    Part.LineSegment(Vector(-16.2, -22.3, 0), Vector(-16.2, -25.3, 0)),
], False)
sketch10.addConstraint([
    Sketcher.Constraint("Coincident", 0, 2, 1, 1),
    Sketcher.Constraint("Coincident", 1, 2, 2, 1),
    Sketcher.Constraint("Coincident", 2, 2, 3, 1),
    Sketcher.Constraint("Coincident", 3, 2, 0, 1),
    Sketcher.Constraint("Coincident", 4, 2, 5, 1),
    Sketcher.Constraint("Coincident", 5, 2, 6, 1),
    Sketcher.Constraint("Coincident", 6, 2, 7, 1),
    Sketcher.Constraint("Coincident", 7, 2, 4, 1),
    Sketcher.Constraint("Horizontal", 0),
    Sketcher.Constraint("Vertical", 1),
    Sketcher.Constraint("Horizontal", 2),
    Sketcher.Constraint("Vertical", 3),
    Sketcher.Constraint("Horizontal", 4),
    Sketcher.Constraint("Vertical", 5),
    Sketcher.Constraint("Horizontal", 6),
    Sketcher.Constraint("Vertical", 7),
    Sketcher.Constraint("Horizontal", 3, 2, 4, 2),
    Sketcher.Constraint("Horizontal", 2, 2, 5, 2),
    Sketcher.Constraint("Equal", 2, 4),
    Sketcher.Constraint("DistanceY", 1, 1, 1, 2, Q("3 mm")),
    Sketcher.Constraint("DistanceX", 0, 2, 0, 1, Q("5.5 mm")),
    Sketcher.Constraint("DistanceX", 4, 2, 0, 2, Q("23 mm")),
    Sketcher.Constraint("DistanceX", -1, 1, 0, 2, Q("1.2944 mm")),
    Sketcher.Constraint("DistanceY", 0, 2, -1, 1, Q("25.3365 mm")),
])
sketch10.setExpression("Constraints[19]", "Params.sketch10_height")
sketch10.setExpression("Constraints[20]", "Params.sketch10_width")
pocket8 = body.newObject("PartDesign::Pocket", "Pocket007")
pocket8.Profile = sketch10
pocket8.setExpression("Length", "Params.pocket8_length")
pocket8.Reversed = True

sketch11 = body.newObject("Sketcher::SketchObject", "Sketch010")
sketch11.AttachmentSupport = (doc.getObject("XY_Plane"), [""])
sketch11.MapMode = "FlatFace"
sketch11.AttachmentOffset = App.Placement(Vector(0, 0, 2.6199), App.Rotation())
sketch11.addGeometry([
    Part.Circle(Vector(-17.5, -5.1, 0), Vector(0, 0, 1), 1.5),
    Part.Circle(Vector(2.5, -5.1, 0), Vector(0, 0, 1), 1.5),
], False)
sketch11.addConstraint([
    Sketcher.Constraint("Equal", 0, 1),
    Sketcher.Constraint("Horizontal", 0, 3, 1, 3),
    Sketcher.Constraint("Diameter", 0, Q("3 mm")),
    Sketcher.Constraint("DistanceX", 0, 3, 1, 3, Q("20 mm")),
    Sketcher.Constraint("DistanceX", 0, 3, -1, 1, Q("17.4556 mm")),
    Sketcher.Constraint("DistanceY", 0, 3, -1, 1, Q("5.1352 mm")),
])
sketch11.setExpression("Constraints[2]", "Params.sketch11_diameter")
doc.recompute()
hole = body.newObject("PartDesign::Hole", "Hole")
hole.Profile = sketch11
hole.ThreadType = "None"
hole.setExpression("Diameter", "Params.hole_diameter")
hole.DepthType = "ThroughAll"

sketch12 = body.newObject("Sketcher::SketchObject", "Sketch011")
sketch12.AttachmentSupport = (doc.getObject("XZ_Plane"), [""])
sketch12.MapMode = "FlatFace"
sketch12.AttachmentOffset = App.Placement(Vector(0, 0, 9.4352), App.Rotation())
sketch12.addGeometry(Part.Circle(Vector(-7.5, 14.9, 0), Vector(0, 0, 1), 3.2), False)
sketch12.addConstraint([
    Sketcher.Constraint("Diameter", 0, Q("6.4046 mm")),
    Sketcher.Constraint("DistanceY", -1, 1, 0, 3, Q("14.92 mm")),
    Sketcher.Constraint("DistanceX", 0, 3, -1, 1, Q("7.4556 mm")),
])
pocket9 = body.newObject("PartDesign::Pocket", "Pocket008")
pocket9.Profile = sketch12
pocket9.setExpression("Length", "Params.pocket9_length")
pocket9.Reversed = True

doc.recompute()
